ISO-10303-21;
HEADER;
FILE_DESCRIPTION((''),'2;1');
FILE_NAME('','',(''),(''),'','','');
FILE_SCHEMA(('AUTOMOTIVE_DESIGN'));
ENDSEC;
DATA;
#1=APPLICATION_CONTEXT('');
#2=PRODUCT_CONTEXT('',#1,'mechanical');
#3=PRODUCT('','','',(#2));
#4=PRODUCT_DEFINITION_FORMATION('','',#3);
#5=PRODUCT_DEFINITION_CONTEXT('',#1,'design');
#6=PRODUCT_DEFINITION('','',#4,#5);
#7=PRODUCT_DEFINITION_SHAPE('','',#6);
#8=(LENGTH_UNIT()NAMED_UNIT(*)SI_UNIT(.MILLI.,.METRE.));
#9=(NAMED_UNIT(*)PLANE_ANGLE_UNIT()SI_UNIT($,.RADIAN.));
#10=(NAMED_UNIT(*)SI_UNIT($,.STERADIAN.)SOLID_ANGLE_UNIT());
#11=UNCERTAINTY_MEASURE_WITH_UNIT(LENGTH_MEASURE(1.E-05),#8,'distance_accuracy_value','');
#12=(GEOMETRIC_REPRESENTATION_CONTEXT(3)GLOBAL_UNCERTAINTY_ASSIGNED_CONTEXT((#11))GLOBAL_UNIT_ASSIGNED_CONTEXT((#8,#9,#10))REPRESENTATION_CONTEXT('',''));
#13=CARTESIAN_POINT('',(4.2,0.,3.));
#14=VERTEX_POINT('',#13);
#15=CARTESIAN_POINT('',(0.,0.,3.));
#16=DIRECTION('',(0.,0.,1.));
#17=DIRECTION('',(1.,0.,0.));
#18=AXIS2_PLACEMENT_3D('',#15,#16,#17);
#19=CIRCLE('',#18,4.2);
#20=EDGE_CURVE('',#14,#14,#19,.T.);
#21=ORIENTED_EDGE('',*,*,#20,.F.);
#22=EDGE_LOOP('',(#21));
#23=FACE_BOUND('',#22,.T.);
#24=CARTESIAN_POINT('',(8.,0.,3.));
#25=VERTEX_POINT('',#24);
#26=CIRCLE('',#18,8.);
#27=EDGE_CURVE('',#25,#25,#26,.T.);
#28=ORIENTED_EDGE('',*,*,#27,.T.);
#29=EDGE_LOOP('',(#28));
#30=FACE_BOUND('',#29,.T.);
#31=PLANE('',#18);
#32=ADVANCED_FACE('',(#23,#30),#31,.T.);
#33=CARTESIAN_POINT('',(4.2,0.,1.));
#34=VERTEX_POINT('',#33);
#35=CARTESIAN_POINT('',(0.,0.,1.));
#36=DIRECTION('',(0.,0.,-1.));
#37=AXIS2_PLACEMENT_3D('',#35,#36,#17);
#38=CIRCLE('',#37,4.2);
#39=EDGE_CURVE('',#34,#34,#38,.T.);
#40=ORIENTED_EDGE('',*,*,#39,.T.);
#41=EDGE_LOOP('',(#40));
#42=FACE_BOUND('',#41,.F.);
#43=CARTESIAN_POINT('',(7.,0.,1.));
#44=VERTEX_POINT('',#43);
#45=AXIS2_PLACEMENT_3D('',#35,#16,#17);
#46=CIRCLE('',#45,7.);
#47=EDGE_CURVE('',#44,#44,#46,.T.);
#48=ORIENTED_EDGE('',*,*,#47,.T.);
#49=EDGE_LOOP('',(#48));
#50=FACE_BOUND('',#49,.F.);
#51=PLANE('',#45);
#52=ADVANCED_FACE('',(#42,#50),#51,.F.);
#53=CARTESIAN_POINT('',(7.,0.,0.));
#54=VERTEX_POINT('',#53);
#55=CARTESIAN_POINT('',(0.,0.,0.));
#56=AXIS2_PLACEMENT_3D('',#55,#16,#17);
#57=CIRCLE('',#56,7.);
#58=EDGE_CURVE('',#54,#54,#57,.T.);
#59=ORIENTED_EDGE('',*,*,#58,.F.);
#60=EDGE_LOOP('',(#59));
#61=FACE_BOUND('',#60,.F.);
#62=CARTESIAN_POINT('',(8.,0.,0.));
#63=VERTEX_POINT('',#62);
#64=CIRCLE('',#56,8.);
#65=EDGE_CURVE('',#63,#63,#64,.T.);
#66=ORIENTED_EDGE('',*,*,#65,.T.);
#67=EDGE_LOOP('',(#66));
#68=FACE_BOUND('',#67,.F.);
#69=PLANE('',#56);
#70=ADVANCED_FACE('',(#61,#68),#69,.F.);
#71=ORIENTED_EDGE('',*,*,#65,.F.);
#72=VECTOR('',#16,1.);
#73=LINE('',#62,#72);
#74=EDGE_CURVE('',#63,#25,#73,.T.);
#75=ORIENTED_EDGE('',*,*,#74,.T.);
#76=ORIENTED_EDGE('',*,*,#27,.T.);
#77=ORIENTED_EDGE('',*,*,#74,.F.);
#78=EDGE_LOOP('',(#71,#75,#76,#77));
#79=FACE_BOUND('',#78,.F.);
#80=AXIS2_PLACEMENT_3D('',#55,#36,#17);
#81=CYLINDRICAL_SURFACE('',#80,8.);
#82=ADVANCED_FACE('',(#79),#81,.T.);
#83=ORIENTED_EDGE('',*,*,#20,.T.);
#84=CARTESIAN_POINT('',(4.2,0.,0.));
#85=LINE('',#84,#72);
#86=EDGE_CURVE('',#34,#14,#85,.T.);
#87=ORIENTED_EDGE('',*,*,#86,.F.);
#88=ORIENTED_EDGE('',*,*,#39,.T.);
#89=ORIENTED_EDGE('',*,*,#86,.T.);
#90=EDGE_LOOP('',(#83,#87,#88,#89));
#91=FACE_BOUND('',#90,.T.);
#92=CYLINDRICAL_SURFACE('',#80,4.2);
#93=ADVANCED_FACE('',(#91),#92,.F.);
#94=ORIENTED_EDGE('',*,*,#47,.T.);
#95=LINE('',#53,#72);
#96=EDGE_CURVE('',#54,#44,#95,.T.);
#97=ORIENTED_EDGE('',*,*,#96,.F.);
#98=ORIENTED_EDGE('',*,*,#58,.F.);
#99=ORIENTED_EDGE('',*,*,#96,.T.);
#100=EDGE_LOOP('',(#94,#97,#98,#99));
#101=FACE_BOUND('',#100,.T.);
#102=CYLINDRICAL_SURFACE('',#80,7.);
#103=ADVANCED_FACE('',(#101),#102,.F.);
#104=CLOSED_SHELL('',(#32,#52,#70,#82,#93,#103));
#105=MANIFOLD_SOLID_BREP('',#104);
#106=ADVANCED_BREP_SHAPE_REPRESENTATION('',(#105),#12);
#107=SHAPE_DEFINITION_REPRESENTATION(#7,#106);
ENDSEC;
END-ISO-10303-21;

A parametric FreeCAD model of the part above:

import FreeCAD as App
import Part
import Sketcher
from FreeCAD import Vector
Q = App.Units.Quantity

doc = App.newDocument("Part")
body = doc.addObject("PartDesign::Body", "Body")

sketch1 = body.newObject("Sketcher::SketchObject", "Sketch")
sketch1.AttachmentSupport = (doc.getObject("XY_Plane"), [""])
sketch1.MapMode = "FlatFace"
sketch1.addGeometry(Part.Circle(Vector(0, 0, 0), Vector(0, 0, 1), 7), False)
sketch1.addConstraint(Sketcher.Constraint("Coincident", 0, 3, -1, 1))
sketch1.addConstraint(Sketcher.Constraint("Diameter", 0, Q("14 mm")))
pad1 = body.newObject("PartDesign::Pad", "Pad")
pad1.Profile = sketch1
pad1.Length = 1
body2 = doc.addObject("PartDesign::Body", "Body001")

sketch2 = body2.newObject("Sketcher::SketchObject", "Sketch001")
sketch2.AttachmentSupport = (doc.getObject("XY_Plane001"), [""])
sketch2.MapMode = "FlatFace"
sketch2.addGeometry(Part.Circle(Vector(0, 0, 0), Vector(0, 0, 1), 8), False)
sketch2.addGeometry(Part.Circle(Vector(0, 0, 0), Vector(0, 0, 1), 4.2), False)
sketch2.addConstraint(Sketcher.Constraint("Coincident", 0, 3, -1, 1))
sketch2.addConstraint(Sketcher.Constraint("Coincident", 1, 3, -1, 1))
sketch2.addConstraint(Sketcher.Constraint("Diameter", 0, Q("16 mm")))
sketch2.addConstraint(Sketcher.Constraint("Diameter", 1, Q("8.4 mm")))
pad2 = body2.newObject("PartDesign::Pad", "Pad001")
pad2.Profile = sketch2
pad2.Length = 3
doc.recompute()

boolean = body2.newObject("PartDesign::Boolean", "Boolean")
boolean.Type = "Cut"
boolean.addObjects([body])

doc.recompute()
